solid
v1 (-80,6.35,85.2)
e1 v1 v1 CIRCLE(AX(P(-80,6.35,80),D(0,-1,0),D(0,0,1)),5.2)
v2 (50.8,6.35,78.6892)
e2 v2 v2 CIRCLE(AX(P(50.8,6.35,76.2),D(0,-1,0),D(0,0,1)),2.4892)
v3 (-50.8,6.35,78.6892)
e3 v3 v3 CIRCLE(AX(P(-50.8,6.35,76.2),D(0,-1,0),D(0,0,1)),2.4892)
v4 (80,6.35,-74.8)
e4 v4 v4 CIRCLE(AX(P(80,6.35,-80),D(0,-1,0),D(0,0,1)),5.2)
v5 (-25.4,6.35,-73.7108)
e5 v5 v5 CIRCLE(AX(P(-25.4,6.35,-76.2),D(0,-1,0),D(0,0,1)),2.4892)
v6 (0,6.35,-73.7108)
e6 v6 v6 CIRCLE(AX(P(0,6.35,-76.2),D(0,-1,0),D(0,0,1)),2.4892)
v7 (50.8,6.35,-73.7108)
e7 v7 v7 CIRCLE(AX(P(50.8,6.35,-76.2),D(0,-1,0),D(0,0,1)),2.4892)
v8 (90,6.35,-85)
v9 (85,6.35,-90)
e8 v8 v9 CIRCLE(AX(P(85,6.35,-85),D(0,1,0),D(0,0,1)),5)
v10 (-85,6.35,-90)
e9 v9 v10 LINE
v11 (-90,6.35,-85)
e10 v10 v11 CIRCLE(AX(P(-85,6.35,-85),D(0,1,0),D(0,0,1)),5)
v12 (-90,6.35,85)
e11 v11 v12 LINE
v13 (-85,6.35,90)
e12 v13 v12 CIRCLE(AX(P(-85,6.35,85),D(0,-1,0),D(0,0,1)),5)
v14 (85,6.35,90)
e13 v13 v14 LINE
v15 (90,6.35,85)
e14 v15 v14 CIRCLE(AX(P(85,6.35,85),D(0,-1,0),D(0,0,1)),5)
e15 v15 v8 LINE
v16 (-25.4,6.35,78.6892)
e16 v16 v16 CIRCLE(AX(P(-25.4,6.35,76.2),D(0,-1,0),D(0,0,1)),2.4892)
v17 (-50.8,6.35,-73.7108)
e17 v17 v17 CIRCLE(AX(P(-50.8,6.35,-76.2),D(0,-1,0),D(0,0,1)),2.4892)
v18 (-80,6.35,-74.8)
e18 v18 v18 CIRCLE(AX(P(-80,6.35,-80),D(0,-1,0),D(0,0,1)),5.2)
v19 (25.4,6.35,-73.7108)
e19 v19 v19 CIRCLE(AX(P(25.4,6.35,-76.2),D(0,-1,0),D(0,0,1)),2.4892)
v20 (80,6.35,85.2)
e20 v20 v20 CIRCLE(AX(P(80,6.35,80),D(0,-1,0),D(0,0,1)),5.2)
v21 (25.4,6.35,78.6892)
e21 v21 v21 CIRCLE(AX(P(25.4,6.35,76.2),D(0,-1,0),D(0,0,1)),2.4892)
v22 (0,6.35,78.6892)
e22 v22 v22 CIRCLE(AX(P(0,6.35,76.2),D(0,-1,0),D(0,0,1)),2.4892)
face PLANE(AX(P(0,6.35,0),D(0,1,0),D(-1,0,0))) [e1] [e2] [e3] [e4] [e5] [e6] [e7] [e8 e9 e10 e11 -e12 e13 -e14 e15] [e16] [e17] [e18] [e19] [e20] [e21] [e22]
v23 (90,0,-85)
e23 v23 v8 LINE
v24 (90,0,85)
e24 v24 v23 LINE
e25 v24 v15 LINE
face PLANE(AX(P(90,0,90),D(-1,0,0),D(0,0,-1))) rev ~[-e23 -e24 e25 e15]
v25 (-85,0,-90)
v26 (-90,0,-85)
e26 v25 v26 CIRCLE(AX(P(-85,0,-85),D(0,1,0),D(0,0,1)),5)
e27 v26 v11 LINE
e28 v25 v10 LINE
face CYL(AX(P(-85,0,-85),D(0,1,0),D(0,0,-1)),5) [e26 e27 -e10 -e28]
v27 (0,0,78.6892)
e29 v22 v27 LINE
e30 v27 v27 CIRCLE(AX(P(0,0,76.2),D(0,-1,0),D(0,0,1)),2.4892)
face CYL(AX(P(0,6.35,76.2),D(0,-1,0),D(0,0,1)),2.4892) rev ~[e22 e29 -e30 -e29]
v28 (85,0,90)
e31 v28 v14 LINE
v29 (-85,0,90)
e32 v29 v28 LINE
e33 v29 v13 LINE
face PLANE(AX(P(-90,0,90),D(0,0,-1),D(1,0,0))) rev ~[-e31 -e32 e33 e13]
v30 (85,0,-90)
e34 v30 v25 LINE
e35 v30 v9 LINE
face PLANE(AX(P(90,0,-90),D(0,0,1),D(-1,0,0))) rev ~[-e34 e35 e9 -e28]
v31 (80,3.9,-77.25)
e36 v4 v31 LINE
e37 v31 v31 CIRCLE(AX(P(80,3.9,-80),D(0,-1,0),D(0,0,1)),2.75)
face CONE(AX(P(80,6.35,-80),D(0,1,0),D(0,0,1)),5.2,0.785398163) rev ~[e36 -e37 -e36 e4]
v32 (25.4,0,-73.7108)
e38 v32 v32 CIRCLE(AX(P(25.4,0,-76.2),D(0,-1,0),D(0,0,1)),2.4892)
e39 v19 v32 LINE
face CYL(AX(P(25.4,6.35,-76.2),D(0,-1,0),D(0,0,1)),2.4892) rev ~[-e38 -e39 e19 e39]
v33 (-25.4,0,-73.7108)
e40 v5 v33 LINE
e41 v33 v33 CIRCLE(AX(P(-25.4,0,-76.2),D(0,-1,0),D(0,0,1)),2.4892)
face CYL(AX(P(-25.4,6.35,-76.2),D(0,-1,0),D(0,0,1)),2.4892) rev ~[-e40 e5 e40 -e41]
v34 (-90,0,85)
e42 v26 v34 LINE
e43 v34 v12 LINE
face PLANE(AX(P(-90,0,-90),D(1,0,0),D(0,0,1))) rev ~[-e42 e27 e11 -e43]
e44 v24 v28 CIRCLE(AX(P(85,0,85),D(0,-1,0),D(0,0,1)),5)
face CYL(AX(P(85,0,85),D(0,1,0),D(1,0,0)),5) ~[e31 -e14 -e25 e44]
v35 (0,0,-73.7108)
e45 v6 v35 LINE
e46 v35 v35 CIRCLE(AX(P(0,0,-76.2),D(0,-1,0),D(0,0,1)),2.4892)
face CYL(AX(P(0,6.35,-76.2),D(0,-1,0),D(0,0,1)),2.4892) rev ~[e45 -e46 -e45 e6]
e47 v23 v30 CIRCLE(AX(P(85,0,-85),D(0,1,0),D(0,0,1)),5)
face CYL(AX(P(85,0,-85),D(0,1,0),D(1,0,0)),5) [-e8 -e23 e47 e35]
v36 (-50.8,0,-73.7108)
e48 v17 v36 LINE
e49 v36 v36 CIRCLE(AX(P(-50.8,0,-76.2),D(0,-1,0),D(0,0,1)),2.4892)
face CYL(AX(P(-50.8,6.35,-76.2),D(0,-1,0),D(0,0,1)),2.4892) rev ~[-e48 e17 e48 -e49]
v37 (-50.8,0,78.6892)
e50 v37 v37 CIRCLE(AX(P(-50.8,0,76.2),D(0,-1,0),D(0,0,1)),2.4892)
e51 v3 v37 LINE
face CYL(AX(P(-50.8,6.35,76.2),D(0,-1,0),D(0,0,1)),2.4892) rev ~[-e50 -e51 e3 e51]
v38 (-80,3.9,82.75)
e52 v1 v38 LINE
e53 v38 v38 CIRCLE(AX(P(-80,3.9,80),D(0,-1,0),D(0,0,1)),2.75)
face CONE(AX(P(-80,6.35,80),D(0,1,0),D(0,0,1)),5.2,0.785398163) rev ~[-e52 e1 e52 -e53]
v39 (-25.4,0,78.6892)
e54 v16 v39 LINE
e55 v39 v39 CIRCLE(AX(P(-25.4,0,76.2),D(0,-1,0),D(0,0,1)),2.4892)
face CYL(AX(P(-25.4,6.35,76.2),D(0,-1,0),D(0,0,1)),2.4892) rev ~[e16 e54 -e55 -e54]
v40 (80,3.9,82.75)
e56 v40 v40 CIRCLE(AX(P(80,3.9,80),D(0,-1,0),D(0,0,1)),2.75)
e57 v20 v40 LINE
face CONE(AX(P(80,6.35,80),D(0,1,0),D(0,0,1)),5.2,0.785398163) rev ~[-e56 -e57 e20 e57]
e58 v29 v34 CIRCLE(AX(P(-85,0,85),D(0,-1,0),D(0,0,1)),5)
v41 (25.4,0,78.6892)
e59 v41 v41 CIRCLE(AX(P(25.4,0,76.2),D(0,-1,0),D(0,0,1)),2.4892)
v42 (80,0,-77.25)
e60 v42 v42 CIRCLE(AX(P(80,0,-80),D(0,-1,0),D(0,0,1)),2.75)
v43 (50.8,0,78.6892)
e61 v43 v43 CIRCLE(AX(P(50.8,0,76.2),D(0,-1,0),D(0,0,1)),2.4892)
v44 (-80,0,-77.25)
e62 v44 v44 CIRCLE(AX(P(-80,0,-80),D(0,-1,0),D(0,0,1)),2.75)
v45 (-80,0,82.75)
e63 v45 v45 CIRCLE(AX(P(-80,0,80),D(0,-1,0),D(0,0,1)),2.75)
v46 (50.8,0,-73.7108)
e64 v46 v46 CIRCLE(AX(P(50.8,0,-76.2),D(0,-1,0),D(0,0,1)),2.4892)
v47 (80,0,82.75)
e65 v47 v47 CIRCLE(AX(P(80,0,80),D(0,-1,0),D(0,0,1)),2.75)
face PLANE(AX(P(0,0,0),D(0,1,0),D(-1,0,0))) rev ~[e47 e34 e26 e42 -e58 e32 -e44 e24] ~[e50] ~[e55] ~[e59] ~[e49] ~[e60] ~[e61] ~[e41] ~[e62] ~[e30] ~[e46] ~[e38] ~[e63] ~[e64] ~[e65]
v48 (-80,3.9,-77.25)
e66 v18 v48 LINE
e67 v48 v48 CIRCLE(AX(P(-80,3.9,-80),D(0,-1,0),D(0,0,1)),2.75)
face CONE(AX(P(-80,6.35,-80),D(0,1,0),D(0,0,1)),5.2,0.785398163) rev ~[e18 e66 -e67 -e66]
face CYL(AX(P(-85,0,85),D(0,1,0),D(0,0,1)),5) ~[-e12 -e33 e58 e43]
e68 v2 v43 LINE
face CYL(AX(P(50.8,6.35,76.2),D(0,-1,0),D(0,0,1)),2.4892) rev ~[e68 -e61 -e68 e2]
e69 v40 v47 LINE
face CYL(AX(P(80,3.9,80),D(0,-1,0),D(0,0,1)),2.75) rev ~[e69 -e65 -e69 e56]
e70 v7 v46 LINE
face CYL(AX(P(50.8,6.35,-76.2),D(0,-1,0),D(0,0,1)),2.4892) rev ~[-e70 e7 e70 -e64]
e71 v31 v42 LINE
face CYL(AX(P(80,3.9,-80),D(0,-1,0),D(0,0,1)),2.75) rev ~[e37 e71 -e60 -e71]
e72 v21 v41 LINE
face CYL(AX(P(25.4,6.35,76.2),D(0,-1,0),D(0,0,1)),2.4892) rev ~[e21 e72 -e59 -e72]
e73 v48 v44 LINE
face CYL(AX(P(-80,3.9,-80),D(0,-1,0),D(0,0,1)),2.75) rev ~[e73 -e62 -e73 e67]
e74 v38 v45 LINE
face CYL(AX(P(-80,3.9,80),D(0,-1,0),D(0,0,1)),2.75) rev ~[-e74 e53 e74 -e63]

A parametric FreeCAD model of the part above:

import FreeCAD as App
import Part
import Sketcher
from FreeCAD import Vector


def edges_at(feature, points):
    """Names of the edges that pass closest to the given points."""
    edges = feature.Shape.Edges
    near = lambda p: min(range(len(edges)), key=lambda i: edges[i].distToShape(Part.Vertex(*p))[0])
    return sorted({f"Edge{near(p) + 1}" for p in points})


def add_polygon(sketch, points):
    """Adds a closed chain of lines whose ends are joined by coincident constraints."""
    first, n = sketch.GeometryCount, len(points)
    for a, b in zip(points, points[1:] + points[:1]):
        sketch.addGeometry(Part.LineSegment(App.Vector(*a, 0), App.Vector(*b, 0)), False)
    for i in range(n):
        sketch.addConstraint(Sketcher.Constraint("Coincident", first + i, 2, first + (i + 1) % n, 1))

doc = App.newDocument("Part")
params = doc.addObject("Spreadsheet::Sheet", "Params")
for row, (alias, value) in enumerate([
    ("sketch1_width", "180 mm"),
    ("pad1_length", "6.35 mm"),
    ("sketch2_diameter", "5.5 mm"),
    ("hole_diameter", "5.5 mm"),
    ("hole_csink_diameter", "10.4 mm"),
    ("hole2_diameter", "4.9784 mm"),
    ("fillet_radius", "5 mm"),
], start=1):
    params.set(f"A{row}", alias)
    params.set(f"B{row}", "=" + value)
    params.setAlias(f"B{row}", alias)

body = doc.addObject("PartDesign::Body", "Body")

# Sketch on XZ plane
sketch1 = body.newObject("Sketcher::SketchObject", "Sketch")
sketch1.AttachmentSupport = (doc.getObject("XZ_Plane"), [""])
sketch1.MapMode = "FlatFace"
add_polygon(sketch1, [(90, 90), (90, -90), (-90, -90), (-90, 90)])  # lines 0-3
sketch1.addConstraint([
    Sketcher.Constraint("Vertical", 0),
    Sketcher.Constraint("Horizontal", 1),
    Sketcher.Constraint("Vertical", 2),
    Sketcher.Constraint("Horizontal", 3),
    Sketcher.Constraint("Symmetric", 0, 2, 2, 2, -1, 1),
    Sketcher.Constraint("Equal", 3, 0),
    Sketcher.Constraint("DistanceX", 1, 2, 1, 1, 180.0),
])
sketch1.setExpression("Constraints[10]", "Params.sketch1_width")
pad1 = body.newObject("PartDesign::Pad", "Pad")
pad1.Profile = sketch1
pad1.setExpression("Length", "Params.pad1_length")
pad1.Reversed = True

# Sketch on XZ plane
sketch2 = body.newObject("Sketcher::SketchObject", "Sketch001")
sketch2.AttachmentSupport = (doc.getObject("XZ_Plane"), [""])
sketch2.MapMode = "FlatFace"
sketch2.AttachmentOffset = App.Placement(Vector(0, 0, -6.35), App.Rotation())
sketch2.addGeometry([
    Part.Circle(Vector(-80, 80, 0), Vector(0, 0, 1), 2.8),
    Part.Circle(Vector(-80, -80, 0), Vector(0, 0, 1), 2.8),
    Part.Circle(Vector(80, -80, 0), Vector(0, 0, 1), 2.8),
    Part.Circle(Vector(80, 80, 0), Vector(0, 0, 1), 2.8),
], False)
sketch2.addConstraint([
    Sketcher.Constraint("Equal", 0, 1),
    Sketcher.Constraint("Equal", 1, 2),
    Sketcher.Constraint("Equal", 2, 3),
    Sketcher.Constraint("Symmetric", 0, 3, 2, 3, -1, 1),
    Sketcher.Constraint("Symmetric", 1, 3, 3, 3, -1, 1),
    Sketcher.Constraint("Symmetric", 1, 3, 2, 3, -2),
    Sketcher.Constraint("Diameter", 0, 5.5),
    Sketcher.Constraint("DistanceX", 0, 3, -1, 1, 80.0),
    Sketcher.Constraint("DistanceY", -1, 1, 0, 3, 80.0),
])
sketch2.setExpression("Constraints[6]", "Params.sketch2_diameter")
doc.recompute()
hole = body.newObject("PartDesign::Hole", "Hole")
hole.Profile = sketch2
hole.ThreadType = "None"
hole.setExpression("Diameter", "Params.hole_diameter")
hole.DepthType = "ThroughAll"
hole.HoleCutType = "Countersink"
hole.setExpression("HoleCutDiameter", "Params.hole_csink_diameter")
hole.HoleCutCountersinkAngle = 90
hole.Reversed = True

# Sketch on XZ plane
sketch3 = body.newObject("Sketcher::SketchObject", "Sketch002")
sketch3.AttachmentSupport = (doc.getObject("XZ_Plane"), [""])
sketch3.MapMode = "FlatFace"
sketch3.AttachmentOffset = App.Placement(Vector(0, 0, -6.35), App.Rotation())
sketch3.addGeometry([
    Part.Circle(Vector(-25.4, -76.2, 0), Vector(0, 0, 1), 2.5),  # 0
    Part.Circle(Vector(-25.4, 76.2, 0), Vector(0, 0, 1), 2.5),  # 1
    Part.Circle(Vector(25.4, 76.2, 0), Vector(0, 0, 1), 2.5),  # 2
    Part.Circle(Vector(25.4, -76.2, 0), Vector(0, 0, 1), 2.5),  # 3
    Part.Circle(Vector(0, 76.2, 0), Vector(0, 0, 1), 2.5),  # 4
    Part.Circle(Vector(-50.8, 76.2, 0), Vector(0, 0, 1), 2.5),  # 5
    Part.Circle(Vector(50.8, 76.2, 0), Vector(0, 0, 1), 2.5),  # 6
    Part.Circle(Vector(50.8, -76.2, 0), Vector(0, 0, 1), 2.5),  # 7
    Part.Circle(Vector(0, -76.2, 0), Vector(0, 0, 1), 2.5),  # 8
    Part.Circle(Vector(-50.8, -76.2, 0), Vector(0, 0, 1), 2.5),  # 9
], False)
sketch3.addConstraint([
    Sketcher.Constraint("Equal", 0, 1),
    Sketcher.Constraint("Equal", 1, 2),
    Sketcher.Constraint("Equal", 2, 3),
    Sketcher.Constraint("Equal", 3, 4),
    Sketcher.Constraint("Equal", 4, 5),
    Sketcher.Constraint("Equal", 5, 6),
    Sketcher.Constraint("Equal", 6, 7),
    Sketcher.Constraint("Equal", 7, 8),
    Sketcher.Constraint("Equal", 8, 9),
    Sketcher.Constraint("Symmetric", 0, 3, 2, 3, -1, 1),
    Sketcher.Constraint("Symmetric", 1, 3, 3, 3, -1, 1),
    Sketcher.Constraint("Symmetric", 5, 3, 7, 3, -1, 1),
    Sketcher.Constraint("Symmetric", 4, 3, 8, 3, -1, 1),
    Sketcher.Constraint("Symmetric", 6, 3, 9, 3, -1, 1),
    Sketcher.Constraint("Symmetric", 1, 3, 2, 3, -2),
    Sketcher.Constraint("Symmetric", 5, 3, 6, 3, -2),
    Sketcher.Constraint("PointOnObject", 4, 3, -2),
    Sketcher.Constraint("Horizontal", 2, 3, 4, 3),
    Sketcher.Constraint("Horizontal", 4, 3, 5, 3),
    Sketcher.Constraint("Diameter", 0, 4.9784),
    Sketcher.Constraint("DistanceX", 0, 3, -1, 1, 25.4),
    Sketcher.Constraint("DistanceY", 0, 3, -1, 1, 76.2),
    Sketcher.Constraint("DistanceX", 5, 3, -1, 1, 50.8),
])
doc.recompute()
hole2 = body.newObject("PartDesign::Hole", "Hole001")
hole2.Profile = sketch3
hole2.ThreadType = "None"
hole2.setExpression("Diameter", "Params.hole2_diameter")
hole2.DepthType = "ThroughAll"
hole2.Reversed = True
doc.recompute()

fillet = body.newObject("PartDesign::Fillet", "Fillet")
fillet.Base = (hole2, edges_at(hole2, [
    (90, 3.175, 90),
    (90, 3.175, -90),
    (-90, 3.175, -90),
    (-90, 3.175, 90),
]))
fillet.setExpression("Radius", "Params.fillet_radius")

doc.recompute()
